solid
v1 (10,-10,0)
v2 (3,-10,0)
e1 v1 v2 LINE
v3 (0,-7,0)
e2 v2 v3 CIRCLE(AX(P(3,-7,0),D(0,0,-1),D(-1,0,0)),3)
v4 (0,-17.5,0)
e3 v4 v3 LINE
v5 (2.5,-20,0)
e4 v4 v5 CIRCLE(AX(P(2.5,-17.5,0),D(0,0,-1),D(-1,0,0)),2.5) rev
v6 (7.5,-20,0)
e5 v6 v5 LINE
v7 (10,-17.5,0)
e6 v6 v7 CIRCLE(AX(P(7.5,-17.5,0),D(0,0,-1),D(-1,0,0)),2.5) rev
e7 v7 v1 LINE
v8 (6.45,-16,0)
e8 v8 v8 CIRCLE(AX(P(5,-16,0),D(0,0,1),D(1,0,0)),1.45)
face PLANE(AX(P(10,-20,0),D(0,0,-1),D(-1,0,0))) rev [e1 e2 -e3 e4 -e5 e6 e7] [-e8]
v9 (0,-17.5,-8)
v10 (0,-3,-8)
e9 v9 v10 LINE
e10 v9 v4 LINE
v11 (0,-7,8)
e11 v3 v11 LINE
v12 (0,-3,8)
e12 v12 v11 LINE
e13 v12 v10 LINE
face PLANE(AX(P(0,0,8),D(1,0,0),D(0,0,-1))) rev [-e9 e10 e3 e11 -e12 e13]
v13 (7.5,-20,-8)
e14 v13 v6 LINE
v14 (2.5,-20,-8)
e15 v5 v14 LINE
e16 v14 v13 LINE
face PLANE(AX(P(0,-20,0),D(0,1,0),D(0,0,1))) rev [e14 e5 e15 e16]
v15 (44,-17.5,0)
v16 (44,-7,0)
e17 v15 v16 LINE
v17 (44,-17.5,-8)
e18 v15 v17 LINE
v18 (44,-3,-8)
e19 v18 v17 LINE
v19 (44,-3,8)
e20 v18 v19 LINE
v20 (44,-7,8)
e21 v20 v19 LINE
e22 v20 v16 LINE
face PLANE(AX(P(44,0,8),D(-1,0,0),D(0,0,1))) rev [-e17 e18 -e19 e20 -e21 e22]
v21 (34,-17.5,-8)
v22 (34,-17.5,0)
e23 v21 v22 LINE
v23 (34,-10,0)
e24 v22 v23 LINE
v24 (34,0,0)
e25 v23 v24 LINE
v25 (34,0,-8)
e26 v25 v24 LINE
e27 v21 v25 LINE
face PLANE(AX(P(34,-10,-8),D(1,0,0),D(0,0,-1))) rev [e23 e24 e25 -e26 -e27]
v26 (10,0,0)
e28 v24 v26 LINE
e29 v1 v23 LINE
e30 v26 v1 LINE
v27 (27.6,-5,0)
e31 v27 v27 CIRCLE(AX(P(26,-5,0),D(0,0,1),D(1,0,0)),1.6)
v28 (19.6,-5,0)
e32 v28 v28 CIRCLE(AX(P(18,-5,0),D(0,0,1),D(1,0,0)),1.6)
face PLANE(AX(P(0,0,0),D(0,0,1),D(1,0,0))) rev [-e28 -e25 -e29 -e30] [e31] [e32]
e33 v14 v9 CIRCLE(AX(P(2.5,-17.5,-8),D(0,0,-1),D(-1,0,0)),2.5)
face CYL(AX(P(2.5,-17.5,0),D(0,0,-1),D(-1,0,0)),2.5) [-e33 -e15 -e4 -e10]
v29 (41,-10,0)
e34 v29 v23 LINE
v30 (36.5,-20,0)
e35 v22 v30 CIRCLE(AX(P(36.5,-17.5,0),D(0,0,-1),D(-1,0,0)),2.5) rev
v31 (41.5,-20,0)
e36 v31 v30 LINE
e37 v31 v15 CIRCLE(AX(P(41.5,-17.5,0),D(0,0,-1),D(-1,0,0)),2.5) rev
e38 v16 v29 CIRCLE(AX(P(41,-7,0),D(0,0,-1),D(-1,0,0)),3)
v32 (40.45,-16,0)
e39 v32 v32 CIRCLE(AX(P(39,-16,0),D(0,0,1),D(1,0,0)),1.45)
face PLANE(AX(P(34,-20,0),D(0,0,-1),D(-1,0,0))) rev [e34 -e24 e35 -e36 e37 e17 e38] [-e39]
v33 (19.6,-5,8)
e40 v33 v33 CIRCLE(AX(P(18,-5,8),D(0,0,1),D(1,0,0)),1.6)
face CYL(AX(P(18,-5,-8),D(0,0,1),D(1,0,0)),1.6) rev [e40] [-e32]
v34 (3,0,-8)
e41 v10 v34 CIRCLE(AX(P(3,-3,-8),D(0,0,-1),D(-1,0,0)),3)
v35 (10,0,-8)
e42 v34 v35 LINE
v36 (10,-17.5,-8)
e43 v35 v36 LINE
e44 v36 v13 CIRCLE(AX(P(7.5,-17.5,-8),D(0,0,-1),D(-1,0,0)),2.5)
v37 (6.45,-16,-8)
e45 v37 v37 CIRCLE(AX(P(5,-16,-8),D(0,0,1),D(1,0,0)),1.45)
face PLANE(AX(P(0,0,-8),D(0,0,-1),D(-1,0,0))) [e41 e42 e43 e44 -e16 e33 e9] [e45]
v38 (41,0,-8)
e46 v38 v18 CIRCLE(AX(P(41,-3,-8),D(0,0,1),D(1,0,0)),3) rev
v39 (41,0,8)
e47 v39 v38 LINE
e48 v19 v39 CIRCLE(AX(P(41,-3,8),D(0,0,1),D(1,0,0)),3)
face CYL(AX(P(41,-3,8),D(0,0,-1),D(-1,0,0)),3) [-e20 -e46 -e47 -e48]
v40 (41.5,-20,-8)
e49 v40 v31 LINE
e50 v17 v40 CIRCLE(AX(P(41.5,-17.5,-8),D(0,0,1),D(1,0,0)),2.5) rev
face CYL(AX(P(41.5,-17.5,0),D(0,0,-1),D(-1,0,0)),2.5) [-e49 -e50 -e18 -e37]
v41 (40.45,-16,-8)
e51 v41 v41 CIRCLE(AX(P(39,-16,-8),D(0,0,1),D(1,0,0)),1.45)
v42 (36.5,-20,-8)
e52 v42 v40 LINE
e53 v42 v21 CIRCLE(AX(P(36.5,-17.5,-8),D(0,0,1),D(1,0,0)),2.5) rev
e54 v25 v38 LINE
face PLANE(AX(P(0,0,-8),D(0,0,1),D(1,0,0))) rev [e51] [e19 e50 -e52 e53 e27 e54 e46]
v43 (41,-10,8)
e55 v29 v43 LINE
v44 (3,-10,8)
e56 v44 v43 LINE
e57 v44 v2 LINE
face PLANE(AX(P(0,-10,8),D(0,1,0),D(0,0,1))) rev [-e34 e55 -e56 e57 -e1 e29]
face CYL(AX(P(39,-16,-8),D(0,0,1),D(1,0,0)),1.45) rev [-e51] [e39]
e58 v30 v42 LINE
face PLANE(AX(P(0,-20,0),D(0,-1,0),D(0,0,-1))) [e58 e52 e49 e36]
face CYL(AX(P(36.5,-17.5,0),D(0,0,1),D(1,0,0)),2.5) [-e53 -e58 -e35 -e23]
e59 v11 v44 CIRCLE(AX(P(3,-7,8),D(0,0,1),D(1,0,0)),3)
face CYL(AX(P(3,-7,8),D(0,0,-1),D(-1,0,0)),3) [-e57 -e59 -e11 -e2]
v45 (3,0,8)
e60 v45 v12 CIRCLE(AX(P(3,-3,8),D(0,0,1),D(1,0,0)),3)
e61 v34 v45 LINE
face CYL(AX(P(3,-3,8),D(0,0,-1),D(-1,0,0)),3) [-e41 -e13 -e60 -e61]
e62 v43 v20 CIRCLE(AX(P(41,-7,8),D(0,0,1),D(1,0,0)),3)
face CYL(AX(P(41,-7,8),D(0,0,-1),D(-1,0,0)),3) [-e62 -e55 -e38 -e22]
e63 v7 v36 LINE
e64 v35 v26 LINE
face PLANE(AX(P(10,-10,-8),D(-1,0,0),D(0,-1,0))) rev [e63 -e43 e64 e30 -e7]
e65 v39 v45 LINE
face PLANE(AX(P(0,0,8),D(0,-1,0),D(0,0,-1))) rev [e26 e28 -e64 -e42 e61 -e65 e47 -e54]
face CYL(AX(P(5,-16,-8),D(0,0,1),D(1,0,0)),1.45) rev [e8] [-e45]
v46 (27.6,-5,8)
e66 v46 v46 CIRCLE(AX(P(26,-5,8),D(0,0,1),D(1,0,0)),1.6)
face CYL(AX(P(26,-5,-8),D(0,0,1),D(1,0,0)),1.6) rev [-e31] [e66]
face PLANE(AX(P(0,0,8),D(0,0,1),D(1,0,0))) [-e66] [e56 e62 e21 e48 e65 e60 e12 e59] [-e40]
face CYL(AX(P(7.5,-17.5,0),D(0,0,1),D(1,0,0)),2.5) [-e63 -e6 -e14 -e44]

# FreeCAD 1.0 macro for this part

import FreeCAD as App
import Part
import Sketcher

V = App.Vector


def edges_at(feature, points):
    """Names of the edges that pass closest to the given points."""
    edges = feature.Shape.Edges
    near = lambda p: min(range(len(edges)), key=lambda i: edges[i].distToShape(Part.Vertex(*p))[0])
    return sorted({f"Edge{near(p) + 1}" for p in points})

doc = App.newDocument("Part")
params = doc.addObject("Spreadsheet::Sheet", "Params")
for row, (alias, value) in enumerate([
    ("sketch1_width", "44 mm"),
    ("sketch1_height", "10 mm"),
    ("pad1_length", "8 mm"),
    ("sketch2_width", "10 mm"),
    ("pad2_length", "8 mm"),
    ("sketch3_diameter", "3.2 mm"),
    ("sketch4_width", "10 mm"),
    ("sketch4_height", "8 mm"),
    ("pad3_length", "10 mm"),
    ("sketch5_diameter", "2.9 mm"),
    ("fillet_radius", "2.5 mm"),
    ("fillet2_radius", "3 mm"),
], start=1):
    params.set(f"A{row}", alias)
    params.set(f"B{row}", "=" + value)
    params.setAlias(f"B{row}", alias)

body = doc.addObject("PartDesign::Body", "Body")

# Sketch on XY plane
sketch1 = doc.addObject("Sketcher::SketchObject", "Sketch")
body.addObject(sketch1)
sketch1.AttachmentSupport = (doc.XY_Plane, [""])
sketch1.MapMode = "FlatFace"
sketch1.addGeometry(Part.LineSegment(V(0, 0, 0), V(0, -10, 0)), False)
sketch1.addGeometry(Part.LineSegment(V(0, -10, 0), V(44, -10, 0)), False)
sketch1.addGeometry(Part.LineSegment(V(44, -10, 0), V(44, 0, 0)), False)
sketch1.addGeometry(Part.LineSegment(V(44, 0, 0), V(0, 0, 0)), False)
sketch1.addConstraint(Sketcher.Constraint("Coincident", 0, 2, 1, 1))
sketch1.addConstraint(Sketcher.Constraint("Coincident", 1, 2, 2, 1))
sketch1.addConstraint(Sketcher.Constraint("Coincident", 2, 2, 3, 1))
sketch1.addConstraint(Sketcher.Constraint("Coincident", 3, 2, 0, 1))
sketch1.addConstraint(Sketcher.Constraint("Vertical", 0))
sketch1.addConstraint(Sketcher.Constraint("Horizontal", 1))
sketch1.addConstraint(Sketcher.Constraint("Vertical", 2))
sketch1.addConstraint(Sketcher.Constraint("Horizontal", 3))
sketch1.addConstraint(Sketcher.Constraint("Coincident", 3, 2, -1, 1))
sketch1.addConstraint(Sketcher.Constraint("DistanceX", 1, 1, 1, 2, 44.0))
sketch1.addConstraint(Sketcher.Constraint("DistanceY", 0, 2, 0, 1, 10.0))
sketch1.setExpression("Constraints[9]", "Params.sketch1_width")
sketch1.setExpression("Constraints[10]", "Params.sketch1_height")
pad1 = doc.addObject("PartDesign::Pad", "Pad")
body.addObject(pad1)
pad1.Profile = sketch1
pad1.setExpression("Length", "Params.pad1_length")

# Sketch on XY plane
sketch2 = doc.addObject("Sketcher::SketchObject", "Sketch001")
body.addObject(sketch2)
sketch2.AttachmentSupport = (doc.XY_Plane, [""])
sketch2.MapMode = "FlatFace"
sketch2.addGeometry(Part.LineSegment(V(10, 0, 0), V(10, -10, 0)), False)
sketch2.addGeometry(Part.LineSegment(V(10, -10, 0), V(0, -10, 0)), False)
sketch2.addGeometry(Part.LineSegment(V(0, -10, 0), V(0, 0, 0)), False)
sketch2.addGeometry(Part.LineSegment(V(0, 0, 0), V(10, 0, 0)), False)
sketch2.addGeometry(Part.LineSegment(V(44, 0, 0), V(44, -10, 0)), False)
sketch2.addGeometry(Part.LineSegment(V(44, -10, 0), V(34, -10, 0)), False)
sketch2.addGeometry(Part.LineSegment(V(34, -10, 0), V(34, 0, 0)), False)
sketch2.addGeometry(Part.LineSegment(V(34, 0, 0), V(44, 0, 0)), False)
sketch2.addConstraint(Sketcher.Constraint("Coincident", 0, 2, 1, 1))
sketch2.addConstraint(Sketcher.Constraint("Coincident", 1, 2, 2, 1))
sketch2.addConstraint(Sketcher.Constraint("Coincident", 2, 2, 3, 1))
sketch2.addConstraint(Sketcher.Constraint("Coincident", 3, 2, 0, 1))
sketch2.addConstraint(Sketcher.Constraint("Coincident", 4, 2, 5, 1))
sketch2.addConstraint(Sketcher.Constraint("Coincident", 5, 2, 6, 1))
sketch2.addConstraint(Sketcher.Constraint("Coincident", 6, 2, 7, 1))
sketch2.addConstraint(Sketcher.Constraint("Coincident", 7, 2, 4, 1))
sketch2.addConstraint(Sketcher.Constraint("Vertical", 0))
sketch2.addConstraint(Sketcher.Constraint("Horizontal", 1))
sketch2.addConstraint(Sketcher.Constraint("Vertical", 2))
sketch2.addConstraint(Sketcher.Constraint("Horizontal", 3))
sketch2.addConstraint(Sketcher.Constraint("Vertical", 4))
sketch2.addConstraint(Sketcher.Constraint("Horizontal", 5))
sketch2.addConstraint(Sketcher.Constraint("Vertical", 6))
sketch2.addConstraint(Sketcher.Constraint("Horizontal", 7))
sketch2.addConstraint(Sketcher.Constraint("Coincident", 2, 2, -1, 1))
sketch2.addConstraint(Sketcher.Constraint("PointOnObject", 6, 2, -1))
sketch2.addConstraint(Sketcher.Constraint("Horizontal", 1, 2, 4, 2))
sketch2.addConstraint(Sketcher.Constraint("Equal", 3, 5))
sketch2.addConstraint(Sketcher.Constraint("Equal", 7, 0))
sketch2.addConstraint(Sketcher.Constraint("DistanceX", 1, 2, 1, 1, 10.0))
sketch2.addConstraint(Sketcher.Constraint("DistanceX", -1, 1, 4, 2, 44.0))
sketch2.setExpression("Constraints[21]", "Params.sketch2_width")
pad2 = doc.addObject("PartDesign::Pad", "Pad001")
body.addObject(pad2)
pad2.Profile = sketch2
pad2.setExpression("Length", "Params.pad2_length")
pad2.Reversed = True

# Sketch on XY plane
sketch3 = doc.addObject("Sketcher::SketchObject", "Sketch002")
body.addObject(sketch3)
sketch3.AttachmentSupport = (doc.XY_Plane, [""])
sketch3.MapMode = "FlatFace"
sketch3.AttachmentOffset = App.Placement(V(0, 0, 8), App.Rotation())
sketch3.addGeometry(Part.Circle(V(18, -5, 0), V(0, 0, 1), 1.6), False)
sketch3.addGeometry(Part.Circle(V(26, -5, 0), V(0, 0, 1), 1.6), False)
sketch3.addConstraint(Sketcher.Constraint("Equal", 0, 1))
sketch3.addConstraint(Sketcher.Constraint("Horizontal", 0, 3, 1, 3))
sketch3.addConstraint(Sketcher.Constraint("Diameter", 0, 3.2))
sketch3.addConstraint(Sketcher.Constraint("DistanceX", -1, 1, 0, 3, 18.0))
sketch3.addConstraint(Sketcher.Constraint("DistanceY", 0, 3, -1, 1, 5.0))
sketch3.addConstraint(Sketcher.Constraint("DistanceX", -1, 1, 1, 3, 26.0))
sketch3.setExpression("Constraints[2]", "Params.sketch3_diameter")
pocket1 = doc.addObject("PartDesign::Pocket", "Pocket")
body.addObject(pocket1)
pocket1.Profile = sketch3
pocket1.Type = "ThroughAll"

# Sketch on XZ plane
sketch4 = doc.addObject("Sketcher::SketchObject", "Sketch003")
body.addObject(sketch4)
sketch4.AttachmentSupport = (doc.XZ_Plane, [""])
sketch4.MapMode = "FlatFace"
sketch4.AttachmentOffset = App.Placement(V(0, 0, 10), App.Rotation())
sketch4.addGeometry(Part.LineSegment(V(10, -8, 0), V(10, 0, 0)), False)
sketch4.addGeometry(Part.LineSegment(V(10, 0, 0), V(0, 0, 0)), False)
sketch4.addGeometry(Part.LineSegment(V(0, 0, 0), V(0, -8, 0)), False)
sketch4.addGeometry(Part.LineSegment(V(0, -8, 0), V(10, -8, 0)), False)
sketch4.addGeometry(Part.LineSegment(V(44, -8, 0), V(44, 0, 0)), False)
sketch4.addGeometry(Part.LineSegment(V(44, 0, 0), V(34, 0, 0)), False)
sketch4.addGeometry(Part.LineSegment(V(34, 0, 0), V(34, -8, 0)), False)
sketch4.addGeometry(Part.LineSegment(V(34, -8, 0), V(44, -8, 0)), False)
sketch4.addConstraint(Sketcher.Constraint("Coincident", 0, 2, 1, 1))
sketch4.addConstraint(Sketcher.Constraint("Coincident", 1, 2, 2, 1))
sketch4.addConstraint(Sketcher.Constraint("Coincident", 2, 2, 3, 1))
sketch4.addConstraint(Sketcher.Constraint("Coincident", 3, 2, 0, 1))
sketch4.addConstraint(Sketcher.Constraint("Coincident", 4, 2, 5, 1))
sketch4.addConstraint(Sketcher.Constraint("Coincident", 5, 2, 6, 1))
sketch4.addConstraint(Sketcher.Constraint("Coincident", 6, 2, 7, 1))
sketch4.addConstraint(Sketcher.Constraint("Coincident", 7, 2, 4, 1))
sketch4.addConstraint(Sketcher.Constraint("Vertical", 0))
sketch4.addConstraint(Sketcher.Constraint("Horizontal", 1))
sketch4.addConstraint(Sketcher.Constraint("Vertical", 2))
sketch4.addConstraint(Sketcher.Constraint("Horizontal", 3))
sketch4.addConstraint(Sketcher.Constraint("Vertical", 4))
sketch4.addConstraint(Sketcher.Constraint("Horizontal", 5))
sketch4.addConstraint(Sketcher.Constraint("Vertical", 6))
sketch4.addConstraint(Sketcher.Constraint("Horizontal", 7))
sketch4.addConstraint(Sketcher.Constraint("Coincident", 1, 2, -1, 1))
sketch4.addConstraint(Sketcher.Constraint("PointOnObject", 4, 2, -1))
sketch4.addConstraint(Sketcher.Constraint("Horizontal", 3, 2, 6, 2))
sketch4.addConstraint(Sketcher.Constraint("Equal", 3, 5))
sketch4.addConstraint(Sketcher.Constraint("DistanceX", 1, 2, 1, 1, 10.0))
sketch4.addConstraint(Sketcher.Constraint("DistanceY", 0, 1, 0, 2, 8.0))
sketch4.addConstraint(Sketcher.Constraint("DistanceX", -1, 1, 4, 2, 44.0))
sketch4.setExpression("Constraints[20]", "Params.sketch4_width")
sketch4.setExpression("Constraints[21]", "Params.sketch4_height")
pad3 = doc.addObject("PartDesign::Pad", "Pad002")
body.addObject(pad3)
pad3.Profile = sketch4
pad3.setExpression("Length", "Params.pad3_length")

# Sketch on XY plane
sketch5 = doc.addObject("Sketcher::SketchObject", "Sketch004")
body.addObject(sketch5)
sketch5.AttachmentSupport = (doc.XY_Plane, [""])
sketch5.MapMode = "FlatFace"
sketch5.addGeometry(Part.Circle(V(5, -16, 0), V(0, 0, 1), 1.4), False)
sketch5.addGeometry(Part.Circle(V(39, -16, 0), V(0, 0, 1), 1.4), False)
sketch5.addConstraint(Sketcher.Constraint("Equal", 0, 1))
sketch5.addConstraint(Sketcher.Constraint("Horizontal", 0, 3, 1, 3))
sketch5.addConstraint(Sketcher.Constraint("Diameter", 0, 2.9))
sketch5.addConstraint(Sketcher.Constraint("DistanceX", -1, 1, 0, 3, 5.0))
sketch5.addConstraint(Sketcher.Constraint("DistanceY", 0, 3, -1, 1, 16.0))
sketch5.addConstraint(Sketcher.Constraint("DistanceX", -1, 1, 1, 3, 39.0))
sketch5.setExpression("Constraints[2]", "Params.sketch5_diameter")
pocket2 = doc.addObject("PartDesign::Pocket", "Pocket001")
body.addObject(pocket2)
pocket2.Profile = sketch5
pocket2.Type = "ThroughAll"
doc.recompute()

fillet = doc.addObject("PartDesign::Fillet", "Fillet")
body.addObject(fillet)
fillet.Base = (pocket2, edges_at(pocket2, [
    (10, -20, -4),
    (0, -20, -4),
    (34, -20, -4),
    (44, -20, -4),
]))
fillet.setExpression("Radius", "Params.fillet_radius")
doc.recompute()

fillet2 = doc.addObject("PartDesign::Fillet", "Fillet001")
body.addObject(fillet2)
fillet2.Base = (fillet, edges_at(fillet, [
    (0, 0, 0),
    (44, 0, 0),
    (44, -10, 4),
    (0, -10, 4),
]))
fillet2.setExpression("Radius", "Params.fillet2_radius")

doc.recompute()
